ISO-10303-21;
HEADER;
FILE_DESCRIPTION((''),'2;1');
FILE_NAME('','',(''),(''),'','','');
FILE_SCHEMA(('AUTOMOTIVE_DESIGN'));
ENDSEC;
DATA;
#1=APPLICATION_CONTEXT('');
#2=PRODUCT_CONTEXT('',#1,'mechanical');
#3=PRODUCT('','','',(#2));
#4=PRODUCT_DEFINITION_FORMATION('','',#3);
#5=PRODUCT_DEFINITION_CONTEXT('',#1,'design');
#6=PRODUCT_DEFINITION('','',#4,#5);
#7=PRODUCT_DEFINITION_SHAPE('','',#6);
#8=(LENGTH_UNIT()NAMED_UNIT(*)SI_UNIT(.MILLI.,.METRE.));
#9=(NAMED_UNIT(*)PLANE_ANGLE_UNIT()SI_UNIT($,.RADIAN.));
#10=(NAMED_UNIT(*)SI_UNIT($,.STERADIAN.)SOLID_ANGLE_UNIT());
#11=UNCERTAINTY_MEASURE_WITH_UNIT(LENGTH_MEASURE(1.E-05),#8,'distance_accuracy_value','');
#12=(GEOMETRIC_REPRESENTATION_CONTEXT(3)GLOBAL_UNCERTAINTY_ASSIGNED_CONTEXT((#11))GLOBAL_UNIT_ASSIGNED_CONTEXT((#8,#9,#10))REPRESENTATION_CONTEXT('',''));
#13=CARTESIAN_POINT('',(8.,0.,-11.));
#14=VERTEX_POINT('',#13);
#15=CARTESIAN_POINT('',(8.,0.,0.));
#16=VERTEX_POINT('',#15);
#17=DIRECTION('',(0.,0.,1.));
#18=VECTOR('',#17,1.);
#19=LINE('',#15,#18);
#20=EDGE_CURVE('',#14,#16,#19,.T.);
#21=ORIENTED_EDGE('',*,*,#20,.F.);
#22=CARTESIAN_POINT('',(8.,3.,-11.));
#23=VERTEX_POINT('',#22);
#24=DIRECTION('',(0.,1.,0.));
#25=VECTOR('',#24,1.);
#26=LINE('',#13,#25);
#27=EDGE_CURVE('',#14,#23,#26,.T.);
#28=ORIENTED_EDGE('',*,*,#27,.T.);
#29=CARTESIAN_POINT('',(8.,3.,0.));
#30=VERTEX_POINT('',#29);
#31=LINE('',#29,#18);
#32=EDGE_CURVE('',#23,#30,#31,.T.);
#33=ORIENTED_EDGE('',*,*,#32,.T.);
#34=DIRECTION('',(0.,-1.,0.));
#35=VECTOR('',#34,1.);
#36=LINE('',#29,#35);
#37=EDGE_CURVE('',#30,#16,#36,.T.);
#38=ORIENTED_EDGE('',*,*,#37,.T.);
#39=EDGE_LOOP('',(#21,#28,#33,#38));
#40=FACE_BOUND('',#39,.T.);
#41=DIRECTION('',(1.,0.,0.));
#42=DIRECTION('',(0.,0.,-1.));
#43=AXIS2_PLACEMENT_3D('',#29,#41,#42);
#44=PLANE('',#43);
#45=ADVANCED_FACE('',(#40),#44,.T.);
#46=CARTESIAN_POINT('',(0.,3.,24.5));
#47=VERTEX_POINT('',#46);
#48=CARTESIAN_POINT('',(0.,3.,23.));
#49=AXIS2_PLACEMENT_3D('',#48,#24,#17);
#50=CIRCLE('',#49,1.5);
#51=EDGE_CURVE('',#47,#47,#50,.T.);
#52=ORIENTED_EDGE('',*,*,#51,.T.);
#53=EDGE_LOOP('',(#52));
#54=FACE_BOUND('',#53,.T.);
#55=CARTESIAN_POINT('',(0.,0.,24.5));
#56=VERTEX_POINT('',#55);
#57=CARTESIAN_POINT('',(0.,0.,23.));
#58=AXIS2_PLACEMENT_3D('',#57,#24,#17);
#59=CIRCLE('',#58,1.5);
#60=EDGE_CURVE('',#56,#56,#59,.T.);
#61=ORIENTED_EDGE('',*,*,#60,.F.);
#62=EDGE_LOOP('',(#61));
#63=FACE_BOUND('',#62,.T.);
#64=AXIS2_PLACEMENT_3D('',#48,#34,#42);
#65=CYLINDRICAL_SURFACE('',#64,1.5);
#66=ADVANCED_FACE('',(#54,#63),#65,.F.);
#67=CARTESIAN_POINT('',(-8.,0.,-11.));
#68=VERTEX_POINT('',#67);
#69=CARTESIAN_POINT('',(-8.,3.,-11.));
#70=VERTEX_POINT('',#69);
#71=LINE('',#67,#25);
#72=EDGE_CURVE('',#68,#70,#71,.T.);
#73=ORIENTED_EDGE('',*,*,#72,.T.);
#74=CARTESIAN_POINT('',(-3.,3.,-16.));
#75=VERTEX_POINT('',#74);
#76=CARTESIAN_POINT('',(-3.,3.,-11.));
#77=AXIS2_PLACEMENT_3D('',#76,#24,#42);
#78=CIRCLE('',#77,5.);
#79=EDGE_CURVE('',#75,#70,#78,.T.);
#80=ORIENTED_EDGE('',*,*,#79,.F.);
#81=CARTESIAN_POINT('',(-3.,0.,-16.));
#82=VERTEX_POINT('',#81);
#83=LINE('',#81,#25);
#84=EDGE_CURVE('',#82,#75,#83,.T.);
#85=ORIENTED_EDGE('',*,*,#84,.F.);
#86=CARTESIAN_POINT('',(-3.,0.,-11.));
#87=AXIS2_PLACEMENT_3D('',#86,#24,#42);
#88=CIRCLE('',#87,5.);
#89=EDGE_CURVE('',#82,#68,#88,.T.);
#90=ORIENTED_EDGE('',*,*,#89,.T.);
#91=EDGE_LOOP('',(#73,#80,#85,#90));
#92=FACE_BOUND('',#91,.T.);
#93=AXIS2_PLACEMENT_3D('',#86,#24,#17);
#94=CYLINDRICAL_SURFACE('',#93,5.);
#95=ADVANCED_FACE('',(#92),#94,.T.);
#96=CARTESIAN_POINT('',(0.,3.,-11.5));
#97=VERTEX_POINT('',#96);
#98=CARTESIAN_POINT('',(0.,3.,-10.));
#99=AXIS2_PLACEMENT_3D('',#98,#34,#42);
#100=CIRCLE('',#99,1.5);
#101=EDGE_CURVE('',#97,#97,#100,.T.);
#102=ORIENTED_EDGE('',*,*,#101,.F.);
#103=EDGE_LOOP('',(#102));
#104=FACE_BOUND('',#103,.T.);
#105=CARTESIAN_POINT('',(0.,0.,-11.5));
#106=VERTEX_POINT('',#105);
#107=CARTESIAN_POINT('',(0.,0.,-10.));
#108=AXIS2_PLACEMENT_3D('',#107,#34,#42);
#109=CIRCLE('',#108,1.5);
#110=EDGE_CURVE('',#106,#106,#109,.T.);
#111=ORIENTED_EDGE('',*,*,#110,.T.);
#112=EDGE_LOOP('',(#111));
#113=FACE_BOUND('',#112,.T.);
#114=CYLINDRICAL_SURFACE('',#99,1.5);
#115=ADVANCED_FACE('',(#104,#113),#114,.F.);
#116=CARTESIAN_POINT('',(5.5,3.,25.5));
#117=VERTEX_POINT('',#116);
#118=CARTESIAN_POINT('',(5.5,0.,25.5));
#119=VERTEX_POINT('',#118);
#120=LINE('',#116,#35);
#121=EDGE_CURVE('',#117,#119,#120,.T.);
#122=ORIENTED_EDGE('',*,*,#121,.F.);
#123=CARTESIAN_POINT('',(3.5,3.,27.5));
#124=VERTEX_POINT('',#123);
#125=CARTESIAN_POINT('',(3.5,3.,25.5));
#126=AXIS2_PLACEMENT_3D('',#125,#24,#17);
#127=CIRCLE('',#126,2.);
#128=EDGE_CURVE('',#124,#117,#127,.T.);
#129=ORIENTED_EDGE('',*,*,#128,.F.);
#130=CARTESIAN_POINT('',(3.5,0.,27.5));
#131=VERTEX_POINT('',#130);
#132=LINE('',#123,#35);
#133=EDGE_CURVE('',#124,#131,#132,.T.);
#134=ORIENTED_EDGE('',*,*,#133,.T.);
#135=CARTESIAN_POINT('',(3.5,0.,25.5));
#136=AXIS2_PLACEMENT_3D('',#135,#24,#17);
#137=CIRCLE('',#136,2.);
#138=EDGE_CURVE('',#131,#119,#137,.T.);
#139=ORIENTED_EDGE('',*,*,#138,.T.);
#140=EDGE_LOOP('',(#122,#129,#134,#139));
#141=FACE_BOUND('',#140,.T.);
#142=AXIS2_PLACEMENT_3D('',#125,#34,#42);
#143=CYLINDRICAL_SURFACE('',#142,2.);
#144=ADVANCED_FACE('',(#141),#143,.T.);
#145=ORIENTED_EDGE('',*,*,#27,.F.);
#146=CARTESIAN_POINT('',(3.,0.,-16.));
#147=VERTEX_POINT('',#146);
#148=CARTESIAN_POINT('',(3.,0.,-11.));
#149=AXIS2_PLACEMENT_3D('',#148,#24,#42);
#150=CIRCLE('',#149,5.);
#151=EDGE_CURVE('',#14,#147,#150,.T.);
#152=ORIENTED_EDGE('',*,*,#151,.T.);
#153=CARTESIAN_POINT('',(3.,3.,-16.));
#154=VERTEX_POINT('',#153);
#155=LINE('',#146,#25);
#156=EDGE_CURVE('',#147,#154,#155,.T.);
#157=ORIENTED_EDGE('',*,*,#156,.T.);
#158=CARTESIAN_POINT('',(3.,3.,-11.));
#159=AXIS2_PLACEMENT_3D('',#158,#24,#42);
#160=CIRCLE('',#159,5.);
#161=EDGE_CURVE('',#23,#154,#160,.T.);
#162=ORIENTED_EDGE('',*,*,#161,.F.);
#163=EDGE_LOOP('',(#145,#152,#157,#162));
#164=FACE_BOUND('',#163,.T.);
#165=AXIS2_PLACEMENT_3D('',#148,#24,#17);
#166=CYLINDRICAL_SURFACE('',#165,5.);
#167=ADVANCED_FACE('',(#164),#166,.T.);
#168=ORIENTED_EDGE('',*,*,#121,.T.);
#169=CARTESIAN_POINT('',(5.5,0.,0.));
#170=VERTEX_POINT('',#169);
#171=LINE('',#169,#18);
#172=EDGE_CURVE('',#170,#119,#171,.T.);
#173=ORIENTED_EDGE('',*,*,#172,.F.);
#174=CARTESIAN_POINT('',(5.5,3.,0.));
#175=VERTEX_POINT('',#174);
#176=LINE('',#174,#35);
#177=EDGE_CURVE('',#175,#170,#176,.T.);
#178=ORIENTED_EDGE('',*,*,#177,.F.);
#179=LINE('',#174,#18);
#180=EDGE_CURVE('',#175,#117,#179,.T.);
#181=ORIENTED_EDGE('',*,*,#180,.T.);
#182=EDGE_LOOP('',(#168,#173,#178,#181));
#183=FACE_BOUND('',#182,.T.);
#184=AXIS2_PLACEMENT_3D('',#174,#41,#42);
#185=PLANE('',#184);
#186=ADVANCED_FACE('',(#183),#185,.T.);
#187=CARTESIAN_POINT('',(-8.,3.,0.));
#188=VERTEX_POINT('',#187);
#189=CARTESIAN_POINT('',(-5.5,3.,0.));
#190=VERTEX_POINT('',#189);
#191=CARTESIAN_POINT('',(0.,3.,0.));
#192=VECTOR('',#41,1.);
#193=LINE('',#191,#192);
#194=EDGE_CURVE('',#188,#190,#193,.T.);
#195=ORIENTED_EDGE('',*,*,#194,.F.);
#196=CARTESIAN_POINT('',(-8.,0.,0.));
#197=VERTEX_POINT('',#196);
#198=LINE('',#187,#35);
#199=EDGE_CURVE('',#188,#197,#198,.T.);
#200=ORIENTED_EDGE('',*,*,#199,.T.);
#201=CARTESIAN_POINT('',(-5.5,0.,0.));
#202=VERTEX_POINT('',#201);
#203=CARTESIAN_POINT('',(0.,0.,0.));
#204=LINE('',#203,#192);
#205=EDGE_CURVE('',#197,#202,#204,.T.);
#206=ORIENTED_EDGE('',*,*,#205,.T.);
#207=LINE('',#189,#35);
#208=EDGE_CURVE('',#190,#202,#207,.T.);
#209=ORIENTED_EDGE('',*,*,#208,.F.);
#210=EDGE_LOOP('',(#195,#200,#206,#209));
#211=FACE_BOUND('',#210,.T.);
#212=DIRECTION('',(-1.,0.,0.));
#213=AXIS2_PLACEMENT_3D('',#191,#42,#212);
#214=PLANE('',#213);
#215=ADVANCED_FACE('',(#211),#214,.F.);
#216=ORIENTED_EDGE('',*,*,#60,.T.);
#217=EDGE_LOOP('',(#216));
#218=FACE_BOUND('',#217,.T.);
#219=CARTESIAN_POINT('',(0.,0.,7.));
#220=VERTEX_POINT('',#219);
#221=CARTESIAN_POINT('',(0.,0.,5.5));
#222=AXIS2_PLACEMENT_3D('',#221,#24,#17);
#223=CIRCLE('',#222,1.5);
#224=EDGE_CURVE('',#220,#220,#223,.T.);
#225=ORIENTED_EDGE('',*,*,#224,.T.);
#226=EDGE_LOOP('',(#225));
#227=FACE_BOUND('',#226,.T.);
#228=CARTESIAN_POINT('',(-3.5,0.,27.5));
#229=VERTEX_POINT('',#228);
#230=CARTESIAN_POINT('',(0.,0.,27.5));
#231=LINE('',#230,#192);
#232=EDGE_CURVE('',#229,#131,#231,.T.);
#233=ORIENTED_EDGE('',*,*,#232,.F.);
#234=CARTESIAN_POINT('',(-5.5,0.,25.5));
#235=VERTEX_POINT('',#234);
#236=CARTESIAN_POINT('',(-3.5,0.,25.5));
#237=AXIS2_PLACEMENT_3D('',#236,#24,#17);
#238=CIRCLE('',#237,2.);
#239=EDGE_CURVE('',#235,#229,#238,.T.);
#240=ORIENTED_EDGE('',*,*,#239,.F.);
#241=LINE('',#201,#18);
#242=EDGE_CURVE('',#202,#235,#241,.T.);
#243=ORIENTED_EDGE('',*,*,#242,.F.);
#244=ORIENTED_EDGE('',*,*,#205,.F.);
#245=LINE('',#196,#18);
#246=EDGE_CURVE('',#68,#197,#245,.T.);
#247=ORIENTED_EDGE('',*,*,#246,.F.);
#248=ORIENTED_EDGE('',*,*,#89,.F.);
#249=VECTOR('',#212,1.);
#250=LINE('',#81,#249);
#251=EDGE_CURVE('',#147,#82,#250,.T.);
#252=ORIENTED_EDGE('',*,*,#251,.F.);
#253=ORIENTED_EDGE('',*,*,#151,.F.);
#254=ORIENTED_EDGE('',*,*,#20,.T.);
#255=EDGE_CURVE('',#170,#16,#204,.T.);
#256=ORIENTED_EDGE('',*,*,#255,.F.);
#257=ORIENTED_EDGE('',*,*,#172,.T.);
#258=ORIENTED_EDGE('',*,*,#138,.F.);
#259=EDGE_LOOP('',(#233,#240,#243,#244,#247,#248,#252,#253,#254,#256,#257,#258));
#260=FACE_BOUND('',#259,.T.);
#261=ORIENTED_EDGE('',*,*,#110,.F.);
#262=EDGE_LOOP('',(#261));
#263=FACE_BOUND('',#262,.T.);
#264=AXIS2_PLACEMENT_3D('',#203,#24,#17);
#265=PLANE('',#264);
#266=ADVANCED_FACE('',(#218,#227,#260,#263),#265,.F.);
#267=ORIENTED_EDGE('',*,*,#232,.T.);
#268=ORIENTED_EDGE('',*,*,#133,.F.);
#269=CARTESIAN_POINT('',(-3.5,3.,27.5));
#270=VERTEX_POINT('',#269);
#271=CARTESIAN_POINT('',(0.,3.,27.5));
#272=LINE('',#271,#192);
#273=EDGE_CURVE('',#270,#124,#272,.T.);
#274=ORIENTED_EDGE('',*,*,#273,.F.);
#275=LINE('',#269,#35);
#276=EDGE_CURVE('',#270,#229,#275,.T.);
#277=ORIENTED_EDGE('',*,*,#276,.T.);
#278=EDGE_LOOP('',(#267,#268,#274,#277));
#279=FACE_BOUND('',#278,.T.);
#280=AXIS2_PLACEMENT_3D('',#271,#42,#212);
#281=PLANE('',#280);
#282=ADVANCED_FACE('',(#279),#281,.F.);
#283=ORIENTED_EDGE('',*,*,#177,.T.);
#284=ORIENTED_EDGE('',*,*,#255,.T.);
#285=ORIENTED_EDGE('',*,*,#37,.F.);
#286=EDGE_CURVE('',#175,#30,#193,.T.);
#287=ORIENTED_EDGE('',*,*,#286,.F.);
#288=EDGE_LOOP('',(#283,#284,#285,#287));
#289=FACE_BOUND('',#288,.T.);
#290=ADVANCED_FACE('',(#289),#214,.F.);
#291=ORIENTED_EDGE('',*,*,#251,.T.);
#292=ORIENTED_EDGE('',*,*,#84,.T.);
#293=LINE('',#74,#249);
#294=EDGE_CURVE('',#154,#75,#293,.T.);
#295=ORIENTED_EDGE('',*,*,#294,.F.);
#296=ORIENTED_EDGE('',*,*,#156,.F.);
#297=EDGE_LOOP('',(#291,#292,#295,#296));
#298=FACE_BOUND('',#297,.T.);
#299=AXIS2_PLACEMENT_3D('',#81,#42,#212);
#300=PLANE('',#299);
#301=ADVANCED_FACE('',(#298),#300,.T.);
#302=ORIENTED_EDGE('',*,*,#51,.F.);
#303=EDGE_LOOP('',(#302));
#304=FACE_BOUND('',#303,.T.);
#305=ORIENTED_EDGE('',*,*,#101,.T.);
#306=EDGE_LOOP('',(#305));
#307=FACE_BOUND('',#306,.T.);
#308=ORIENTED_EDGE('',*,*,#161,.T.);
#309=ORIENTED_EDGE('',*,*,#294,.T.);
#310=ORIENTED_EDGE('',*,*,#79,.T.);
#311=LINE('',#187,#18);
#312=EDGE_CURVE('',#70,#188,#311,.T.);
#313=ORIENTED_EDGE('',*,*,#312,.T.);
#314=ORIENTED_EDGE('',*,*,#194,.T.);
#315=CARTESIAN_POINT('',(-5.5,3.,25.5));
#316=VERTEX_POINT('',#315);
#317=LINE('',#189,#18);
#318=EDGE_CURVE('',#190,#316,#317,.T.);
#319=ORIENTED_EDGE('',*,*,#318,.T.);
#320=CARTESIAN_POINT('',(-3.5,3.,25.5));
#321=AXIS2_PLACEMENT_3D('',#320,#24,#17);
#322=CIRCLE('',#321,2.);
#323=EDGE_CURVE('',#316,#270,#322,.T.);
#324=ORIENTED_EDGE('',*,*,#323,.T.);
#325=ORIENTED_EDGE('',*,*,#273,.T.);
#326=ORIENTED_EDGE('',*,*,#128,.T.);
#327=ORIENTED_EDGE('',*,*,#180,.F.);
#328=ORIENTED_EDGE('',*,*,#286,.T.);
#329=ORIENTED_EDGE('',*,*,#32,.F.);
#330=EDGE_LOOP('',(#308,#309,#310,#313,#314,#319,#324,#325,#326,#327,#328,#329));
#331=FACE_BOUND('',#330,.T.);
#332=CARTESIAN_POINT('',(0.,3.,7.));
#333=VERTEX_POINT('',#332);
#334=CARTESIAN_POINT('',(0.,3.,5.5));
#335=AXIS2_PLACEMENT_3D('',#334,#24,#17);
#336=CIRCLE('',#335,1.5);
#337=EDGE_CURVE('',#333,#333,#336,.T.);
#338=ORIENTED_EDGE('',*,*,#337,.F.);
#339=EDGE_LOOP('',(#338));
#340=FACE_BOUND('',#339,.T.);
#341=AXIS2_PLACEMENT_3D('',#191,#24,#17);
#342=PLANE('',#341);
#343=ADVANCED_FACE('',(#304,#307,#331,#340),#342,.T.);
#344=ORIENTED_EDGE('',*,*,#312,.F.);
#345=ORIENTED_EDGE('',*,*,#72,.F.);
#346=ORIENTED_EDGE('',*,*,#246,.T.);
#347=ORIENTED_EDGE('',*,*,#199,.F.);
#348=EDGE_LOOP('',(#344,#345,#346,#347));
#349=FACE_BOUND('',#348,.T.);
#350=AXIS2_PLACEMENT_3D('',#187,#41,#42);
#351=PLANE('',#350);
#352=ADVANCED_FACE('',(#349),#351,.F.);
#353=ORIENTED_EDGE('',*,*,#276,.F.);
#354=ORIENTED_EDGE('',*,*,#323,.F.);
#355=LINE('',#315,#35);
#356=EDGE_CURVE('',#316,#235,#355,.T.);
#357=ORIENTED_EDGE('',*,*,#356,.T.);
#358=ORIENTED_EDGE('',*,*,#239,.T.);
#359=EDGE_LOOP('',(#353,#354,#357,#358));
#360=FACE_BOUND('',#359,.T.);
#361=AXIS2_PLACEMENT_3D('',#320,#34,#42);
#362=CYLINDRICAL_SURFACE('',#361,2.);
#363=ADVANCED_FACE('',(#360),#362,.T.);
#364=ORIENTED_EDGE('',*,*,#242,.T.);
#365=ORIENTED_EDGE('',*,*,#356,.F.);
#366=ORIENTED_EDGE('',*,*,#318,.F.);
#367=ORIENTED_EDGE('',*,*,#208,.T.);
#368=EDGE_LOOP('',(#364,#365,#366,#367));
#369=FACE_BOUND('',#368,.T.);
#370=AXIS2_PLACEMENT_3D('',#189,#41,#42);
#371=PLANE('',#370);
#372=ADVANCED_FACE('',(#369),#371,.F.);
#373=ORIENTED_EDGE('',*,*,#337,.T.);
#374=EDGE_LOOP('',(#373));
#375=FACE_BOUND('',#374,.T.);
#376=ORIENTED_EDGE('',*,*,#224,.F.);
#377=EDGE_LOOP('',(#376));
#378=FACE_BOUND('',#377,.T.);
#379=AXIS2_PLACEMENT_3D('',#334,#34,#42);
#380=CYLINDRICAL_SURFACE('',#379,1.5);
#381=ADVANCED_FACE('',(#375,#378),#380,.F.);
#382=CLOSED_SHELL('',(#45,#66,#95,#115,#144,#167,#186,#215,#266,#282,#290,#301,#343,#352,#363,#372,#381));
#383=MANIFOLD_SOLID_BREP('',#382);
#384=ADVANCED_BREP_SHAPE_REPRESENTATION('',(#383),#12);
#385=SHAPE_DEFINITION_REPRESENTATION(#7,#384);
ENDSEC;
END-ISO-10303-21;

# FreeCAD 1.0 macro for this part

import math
import FreeCAD as App
import Part
import Sketcher
Q = App.Units.Quantity

doc = App.newDocument("Part")
params = doc.addObject("Spreadsheet::Sheet", "Params")
for row, (alias, value) in enumerate([
    ("sketch1_diameter", "3 mm"),
    ("sketch1_radius", "2 mm"),
    ("sketch1_width", "12 mm"),
    ("sketch1_width2", "7 mm"),
    ("sketch1_height", "3 mm"),
    ("pad1_length", "3 mm"),
    ("sketch2_radius", "5 mm"),
    ("sketch2_width", "16 mm"),
    ("sketch2_height", "11 mm"),
    ("pad2_length", "3 mm"),
    ("sketch3_diameter", "3 mm"),
    ("pocket1_length", "3 mm"),
], start=1):
    params.set(f"A{row}", alias)
    params.set(f"B{row}", "=" + value)
    params.setAlias(f"B{row}", alias)

body = doc.addObject("PartDesign::Body", "Body")

sketch1 = body.newObject("Sketcher::SketchObject", "Sketch")
sketch1.AttachmentSupport = (doc.getObject("XZ_Plane"), [""])
sketch1.MapMode = "FlatFace"
sketch1.addGeometry([
    Part.LineSegment(App.Vector(6, -5, 0), App.Vector(-6, -5, 0)),
    Part.ArcOfCircle(Part.Circle(App.Vector(-6, -3, 0), App.Vector(0, 0, 1), 2), math.radians(-180), math.radians(-90)),
    Part.LineSegment(App.Vector(-8, -3, 0), App.Vector(-8, 0, 0)),
    Part.LineSegment(App.Vector(-8, 0, 0), App.Vector(-5.5, 0, 0)),
    Part.LineSegment(App.Vector(-5.5, 0, 0), App.Vector(-5.5, 25.5, 0)),
    Part.ArcOfCircle(Part.Circle(App.Vector(-3.5, 25.5, 0), App.Vector(0, 0, 1), 2), math.radians(90), math.radians(180)),
    Part.LineSegment(App.Vector(-3.5, 27.5, 0), App.Vector(3.5, 27.5, 0)),
    Part.ArcOfCircle(Part.Circle(App.Vector(3.5, 25.5, 0), App.Vector(0, 0, 1), 2), math.radians(0), math.radians(90)),
    Part.LineSegment(App.Vector(5.5, 25.5, 0), App.Vector(5.5, 0, 0)),
    Part.LineSegment(App.Vector(5.5, 0, 0), App.Vector(8, 0, 0)),
    Part.LineSegment(App.Vector(8, 0, 0), App.Vector(8, -3, 0)),
    Part.ArcOfCircle(Part.Circle(App.Vector(6, -3, 0), App.Vector(0, 0, 1), 2), math.radians(-90), math.radians(0)),
    Part.Circle(App.Vector(0, 5.5, 0), App.Vector(0, 0, 1), 1.5),
    Part.Circle(App.Vector(0, 23, 0), App.Vector(0, 0, 1), 1.5),
], False)
sketch1.addConstraint([
    Sketcher.Constraint("Tangent", 0, 2, 1, 2),
    Sketcher.Constraint("Tangent", 1, 1, 2, 1),
    Sketcher.Constraint("Coincident", 2, 2, 3, 1),
    Sketcher.Constraint("Coincident", 3, 2, 4, 1),
    Sketcher.Constraint("Tangent", 4, 2, 5, 2),
    Sketcher.Constraint("Tangent", 5, 1, 6, 1),
    Sketcher.Constraint("Tangent", 6, 2, 7, 2),
    Sketcher.Constraint("Tangent", 7, 1, 8, 1),
    Sketcher.Constraint("Coincident", 8, 2, 9, 1),
    Sketcher.Constraint("Coincident", 9, 2, 10, 1),
    Sketcher.Constraint("Tangent", 10, 2, 11, 2),
    Sketcher.Constraint("Tangent", 11, 1, 0, 1),
    Sketcher.Constraint("Horizontal", 0),
    Sketcher.Constraint("Vertical", 2),
    Sketcher.Constraint("Horizontal", 3),
    Sketcher.Constraint("Vertical", 4),
    Sketcher.Constraint("Horizontal", 6),
    Sketcher.Constraint("Vertical", 8),
    Sketcher.Constraint("Horizontal", 9),
    Sketcher.Constraint("Vertical", 10),
    Sketcher.Constraint("Equal", 1, 5),
    Sketcher.Constraint("Equal", 5, 7),
    Sketcher.Constraint("Equal", 7, 11),
    Sketcher.Constraint("Equal", 12, 13),
    Sketcher.Constraint("Symmetric", 3, 2, 8, 2, -1, 1),
    Sketcher.Constraint("Symmetric", 2, 2, 9, 2, -2),
    Sketcher.Constraint("PointOnObject", 12, 3, -2),
    Sketcher.Constraint("PointOnObject", 13, 3, -2),
    Sketcher.Constraint("Diameter", 12, Q("3 mm")),
    Sketcher.Constraint("Radius", 1, Q("2 mm")),
    Sketcher.Constraint("DistanceX", 0, 2, 0, 1, Q("12 mm")),
    Sketcher.Constraint("DistanceX", 6, 1, 6, 2, Q("7 mm")),
    Sketcher.Constraint("DistanceY", 2, 1, 2, 2, Q("3 mm")),
    Sketcher.Constraint("DistanceY", 4, 1, 4, 2, Q("25.5 mm")),
    Sketcher.Constraint("DistanceY", -1, 1, 13, 3, Q("23 mm")),
    Sketcher.Constraint("DistanceY", 12, 3, 5, 3, Q("20 mm")),
])
sketch1.setExpression("Constraints[28]", "Params.sketch1_diameter")
sketch1.setExpression("Constraints[29]", "Params.sketch1_radius")
sketch1.setExpression("Constraints[30]", "Params.sketch1_width")
sketch1.setExpression("Constraints[31]", "Params.sketch1_width2")
sketch1.setExpression("Constraints[32]", "Params.sketch1_height")
pad1 = body.newObject("PartDesign::Pad", "Pad")
pad1.Profile = sketch1
pad1.setExpression("Length", "Params.pad1_length")
pad1.Reversed = True

sketch2 = body.newObject("Sketcher::SketchObject", "Sketch001")
sketch2.AttachmentSupport = (doc.getObject("XZ_Plane"), [""])
sketch2.MapMode = "FlatFace"
sketch2.AttachmentOffset = App.Placement(App.Vector(0, 0, -3), App.Rotation())
sketch2.addGeometry([
    Part.LineSegment(App.Vector(-8, 0, 0), App.Vector(8, 0, 0)),
    Part.LineSegment(App.Vector(8, 0, 0), App.Vector(8, -11, 0)),
    Part.ArcOfCircle(Part.Circle(App.Vector(3, -11, 0), App.Vector(0, 0, 1), 5), math.radians(-90), math.radians(0)),
    Part.LineSegment(App.Vector(3, -16, 0), App.Vector(-3, -16, 0)),
    Part.ArcOfCircle(Part.Circle(App.Vector(-3, -11, 0), App.Vector(0, 0, 1), 5), math.radians(180), math.radians(270)),
    Part.LineSegment(App.Vector(-8, -11, 0), App.Vector(-8, 0, 0)),
], False)
sketch2.addConstraint([
    Sketcher.Constraint("Coincident", 0, 2, 1, 1),
    Sketcher.Constraint("Tangent", 1, 2, 2, 2),
    Sketcher.Constraint("Tangent", 2, 1, 3, 1),
    Sketcher.Constraint("Tangent", 3, 2, 4, 2),
    Sketcher.Constraint("Tangent", 4, 1, 5, 1),
    Sketcher.Constraint("Coincident", 5, 2, 0, 1),
    Sketcher.Constraint("Horizontal", 0),
    Sketcher.Constraint("Vertical", 1),
    Sketcher.Constraint("Horizontal", 3),
    Sketcher.Constraint("Vertical", 5),
    Sketcher.Constraint("Equal", 2, 4),
    Sketcher.Constraint("Symmetric", 0, 2, 5, 2, -1, 1),
    Sketcher.Constraint("Radius", 2, Q("5 mm")),
    Sketcher.Constraint("DistanceX", 0, 1, 0, 2, Q("16 mm")),
    Sketcher.Constraint("DistanceY", 1, 2, 1, 1, Q("11 mm")),
])
sketch2.setExpression("Constraints[12]", "Params.sketch2_radius")
sketch2.setExpression("Constraints[13]", "Params.sketch2_width")
sketch2.setExpression("Constraints[14]", "Params.sketch2_height")
pad2 = body.newObject("PartDesign::Pad", "Pad001")
pad2.Profile = sketch2
pad2.setExpression("Length", "Params.pad2_length")

sketch3 = body.newObject("Sketcher::SketchObject", "Sketch002")
sketch3.AttachmentSupport = (doc.getObject("XZ_Plane"), [""])
sketch3.MapMode = "FlatFace"
sketch3.addGeometry(Part.Circle(App.Vector(0, -10, 0), App.Vector(0, 0, 1), 1.5), False)
sketch3.addConstraint([
    Sketcher.Constraint("PointOnObject", 0, 3, -2),
    Sketcher.Constraint("Diameter", 0, Q("3 mm")),
    Sketcher.Constraint("DistanceY", 0, 3, -1, 1, Q("10 mm")),
])
sketch3.setExpression("Constraints[1]", "Params.sketch3_diameter")
pocket1 = body.newObject("PartDesign::Pocket", "Pocket")
pocket1.Profile = sketch3
pocket1.setExpression("Length", "Params.pocket1_length")

doc.recompute()
